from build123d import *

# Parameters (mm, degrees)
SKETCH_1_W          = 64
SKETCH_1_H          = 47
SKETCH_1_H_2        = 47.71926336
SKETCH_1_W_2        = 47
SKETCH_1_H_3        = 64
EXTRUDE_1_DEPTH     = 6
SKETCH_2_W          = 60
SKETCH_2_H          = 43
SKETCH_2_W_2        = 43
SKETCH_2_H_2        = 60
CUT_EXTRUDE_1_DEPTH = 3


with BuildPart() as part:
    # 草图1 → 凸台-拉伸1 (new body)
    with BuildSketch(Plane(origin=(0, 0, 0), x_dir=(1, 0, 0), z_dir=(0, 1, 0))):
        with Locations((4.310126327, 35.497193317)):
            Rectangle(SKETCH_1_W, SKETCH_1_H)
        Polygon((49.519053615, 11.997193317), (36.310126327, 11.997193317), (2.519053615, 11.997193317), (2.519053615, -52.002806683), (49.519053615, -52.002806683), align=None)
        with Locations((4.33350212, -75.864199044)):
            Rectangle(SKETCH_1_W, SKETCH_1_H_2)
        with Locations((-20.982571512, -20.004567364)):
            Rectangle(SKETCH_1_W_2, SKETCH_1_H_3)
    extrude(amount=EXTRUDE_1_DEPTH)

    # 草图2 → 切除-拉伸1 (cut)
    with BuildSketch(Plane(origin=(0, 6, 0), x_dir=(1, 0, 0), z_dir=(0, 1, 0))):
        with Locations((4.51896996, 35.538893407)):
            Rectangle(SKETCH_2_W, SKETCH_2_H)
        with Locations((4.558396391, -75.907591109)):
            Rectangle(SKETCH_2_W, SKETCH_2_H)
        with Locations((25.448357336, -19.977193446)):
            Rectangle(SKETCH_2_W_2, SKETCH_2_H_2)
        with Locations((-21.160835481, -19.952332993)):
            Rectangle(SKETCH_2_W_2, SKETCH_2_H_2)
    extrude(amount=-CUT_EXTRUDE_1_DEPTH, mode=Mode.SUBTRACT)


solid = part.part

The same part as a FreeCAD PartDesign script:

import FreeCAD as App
import Part
import Sketcher
from FreeCAD import Vector

doc = App.newDocument("Part")
body = doc.addObject("PartDesign::Body", "Body")
body.AllowCompound = True

# Sketch on XZ plane
sketch1 = body.newObject("Sketcher::SketchObject", "Sketch")
sketch1.AttachmentSupport = (doc.getObject("XZ_Plane"), [""])
sketch1.MapMode = "FlatFace"
sketch1.addGeometry([
    Part.LineSegment(Vector(-28, -59, 0), Vector(-28, -12, 0)),  # 0
    Part.LineSegment(Vector(-28, -12, 0), Vector(3, -12, 0)),  # 1
    Part.LineSegment(Vector(3, -12, 0), Vector(3, 52, 0)),  # 2
    Part.LineSegment(Vector(3, 52, 0), Vector(50, 52, 0)),  # 3
    Part.LineSegment(Vector(50, 52, 0), Vector(50, -12, 0)),  # 4
    Part.LineSegment(Vector(50, -12, 0), Vector(36, -12, 0)),  # 5
    Part.LineSegment(Vector(36, -12, 0), Vector(36, -59, 0)),  # 6
    Part.LineSegment(Vector(36, -59, 0), Vector(-28, -59, 0)),  # 7
    Part.LineSegment(Vector(-28, 52, 0), Vector(-28, 100, 0)),  # 8
    Part.LineSegment(Vector(-28, 100, 0), Vector(36, 100, 0)),  # 9
    Part.LineSegment(Vector(36, 100, 0), Vector(36, 52, 0)),  # 10
    Part.LineSegment(Vector(36, 52, 0), Vector(3, 52, 0)),  # 11
    Part.LineSegment(Vector(3, 52, 0), Vector(3, -12, 0)),  # 12
    Part.LineSegment(Vector(3, -12, 0), Vector(-44, -12, 0)),  # 13
    Part.LineSegment(Vector(-44, -12, 0), Vector(-44, 52, 0)),  # 14
    Part.LineSegment(Vector(-44, 52, 0), Vector(-28, 52, 0)),  # 15
], False)
sketch1.addConstraint([
    Sketcher.Constraint("Coincident", 0, 2, 1, 1),
    Sketcher.Constraint("Coincident", 1, 2, 2, 1),
    Sketcher.Constraint("Coincident", 2, 2, 3, 1),
    Sketcher.Constraint("Coincident", 3, 2, 4, 1),
    Sketcher.Constraint("Coincident", 4, 2, 5, 1),
    Sketcher.Constraint("Coincident", 5, 2, 6, 1),
    Sketcher.Constraint("Coincident", 6, 2, 7, 1),
    Sketcher.Constraint("Coincident", 7, 2, 0, 1),
    Sketcher.Constraint("Coincident", 8, 2, 9, 1),
    Sketcher.Constraint("Coincident", 9, 2, 10, 1),
    Sketcher.Constraint("Coincident", 10, 2, 11, 1),
    Sketcher.Constraint("Coincident", 11, 2, 12, 1),
    Sketcher.Constraint("Coincident", 12, 2, 13, 1),
    Sketcher.Constraint("Coincident", 13, 2, 14, 1),
    Sketcher.Constraint("Coincident", 14, 2, 15, 1),
    Sketcher.Constraint("Coincident", 15, 2, 8, 1),
    Sketcher.Constraint("Vertical", 0),
    Sketcher.Constraint("Horizontal", 1),
    Sketcher.Constraint("Vertical", 2),
    Sketcher.Constraint("Horizontal", 3),
    Sketcher.Constraint("Vertical", 4),
    Sketcher.Constraint("Horizontal", 5),
    Sketcher.Constraint("Vertical", 6),
    Sketcher.Constraint("Horizontal", 7),
    Sketcher.Constraint("Vertical", 8),
    Sketcher.Constraint("Horizontal", 9),
    Sketcher.Constraint("Vertical", 10),
    Sketcher.Constraint("Horizontal", 11),
    Sketcher.Constraint("Vertical", 12),
    Sketcher.Constraint("Horizontal", 13),
    Sketcher.Constraint("Vertical", 14),
    Sketcher.Constraint("Horizontal", 15),
    Sketcher.Constraint("Horizontal", 1, 2, 4, 2),
    Sketcher.Constraint("Horizontal", 11, 2, 14, 2),
    Sketcher.Constraint("Equal", 7, 9),
    Sketcher.Constraint("Equal", 3, 13),
    Sketcher.Constraint("Equal", 13, 0),
    Sketcher.Constraint("Equal", 9, 2),
    Sketcher.Constraint("Equal", 4, 12),
    Sketcher.Constraint("DistanceX", 3, 1, 3, 2, 47.0),
    Sketcher.Constraint("DistanceX", 7, 2, 7, 1, 64.0),
    Sketcher.Constraint("DistanceX", 1, 1, 1, 2, 30.208927),
    Sketcher.Constraint("DistanceX", 11, 2, 11, 1, 33.816074),
    Sketcher.Constraint("DistanceY", 8, 1, 8, 2, 47.719263),
    Sketcher.Constraint("DistanceY", -1, 1, 8, 2, 99.723831),
    Sketcher.Constraint("DistanceX", -1, 1, 11, 2, 2.517428),
    Sketcher.Constraint("DistanceX", 8, 2, 2, 2, 30.185551),
    Sketcher.Constraint("DistanceY", 3, 2, 10, 2, 0.001761),
])
pad1 = body.newObject("PartDesign::Pad", "Pad")
pad1.Profile = sketch1
pad1.Length = 6
pad1.Reversed = True

# Sketch on XZ plane
sketch2 = body.newObject("Sketcher::SketchObject", "Sketch001")
sketch2.AttachmentSupport = (doc.getObject("XZ_Plane"), [""])
sketch2.MapMode = "FlatFace"
sketch2.AttachmentOffset = App.Placement(Vector(0, 0, -6), App.Rotation())
sketch2.addGeometry([
    Part.LineSegment(Vector(-25, -57, 0), Vector(-25, -14, 0)),  # 0
    Part.LineSegment(Vector(-25, -14, 0), Vector(35, -14, 0)),  # 1
    Part.LineSegment(Vector(35, -14, 0), Vector(35, -57, 0)),  # 2
    Part.LineSegment(Vector(35, -57, 0), Vector(-25, -57, 0)),  # 3
    Part.LineSegment(Vector(-25, 54, 0), Vector(-25, 97, 0)),  # 4
    Part.LineSegment(Vector(-25, 97, 0), Vector(35, 97, 0)),  # 5
    Part.LineSegment(Vector(35, 97, 0), Vector(35, 54, 0)),  # 6
    Part.LineSegment(Vector(35, 54, 0), Vector(-25, 54, 0)),  # 7
    Part.LineSegment(Vector(4, -10, 0), Vector(4, 50, 0)),  # 8
    Part.LineSegment(Vector(4, 50, 0), Vector(47, 50, 0)),  # 9
    Part.LineSegment(Vector(47, 50, 0), Vector(47, -10, 0)),  # 10
    Part.LineSegment(Vector(47, -10, 0), Vector(4, -10, 0)),  # 11
    Part.LineSegment(Vector(-43, -10, 0), Vector(-43, 50, 0)),  # 12
    Part.LineSegment(Vector(-43, 50, 0), Vector(0, 50, 0)),  # 13
    Part.LineSegment(Vector(0, 50, 0), Vector(0, -10, 0)),  # 14
    Part.LineSegment(Vector(0, -10, 0), Vector(-43, -10, 0)),  # 15
], False)
sketch2.addConstraint([
    Sketcher.Constraint("Coincident", 0, 2, 1, 1),
    Sketcher.Constraint("Coincident", 1, 2, 2, 1),
    Sketcher.Constraint("Coincident", 2, 2, 3, 1),
    Sketcher.Constraint("Coincident", 3, 2, 0, 1),
    Sketcher.Constraint("Coincident", 4, 2, 5, 1),
    Sketcher.Constraint("Coincident", 5, 2, 6, 1),
    Sketcher.Constraint("Coincident", 6, 2, 7, 1),
    Sketcher.Constraint("Coincident", 7, 2, 4, 1),
    Sketcher.Constraint("Coincident", 8, 2, 9, 1),
    Sketcher.Constraint("Coincident", 9, 2, 10, 1),
    Sketcher.Constraint("Coincident", 10, 2, 11, 1),
    Sketcher.Constraint("Coincident", 11, 2, 8, 1),
    Sketcher.Constraint("Coincident", 12, 2, 13, 1),
    Sketcher.Constraint("Coincident", 13, 2, 14, 1),
    Sketcher.Constraint("Coincident", 14, 2, 15, 1),
    Sketcher.Constraint("Coincident", 15, 2, 12, 1),
    Sketcher.Constraint("Vertical", 0),
    Sketcher.Constraint("Horizontal", 1),
    Sketcher.Constraint("Vertical", 2),
    Sketcher.Constraint("Horizontal", 3),
    Sketcher.Constraint("Vertical", 4),
    Sketcher.Constraint("Horizontal", 5),
    Sketcher.Constraint("Vertical", 6),
    Sketcher.Constraint("Horizontal", 7),
    Sketcher.Constraint("Vertical", 8),
    Sketcher.Constraint("Horizontal", 9),
    Sketcher.Constraint("Vertical", 10),
    Sketcher.Constraint("Horizontal", 11),
    Sketcher.Constraint("Vertical", 12),
    Sketcher.Constraint("Horizontal", 13),
    Sketcher.Constraint("Vertical", 14),
    Sketcher.Constraint("Horizontal", 15),
    Sketcher.Constraint("Equal", 3, 5),
    Sketcher.Constraint("Equal", 11, 13),
    Sketcher.Constraint("Equal", 15, 0),
    Sketcher.Constraint("Equal", 2, 4),
    Sketcher.Constraint("Equal", 7, 8),
    Sketcher.Constraint("Equal", 10, 12),
    Sketcher.Constraint("DistanceX", 1, 1, 1, 2, 60.0),
    Sketcher.Constraint("DistanceX", 9, 1, 9, 2, 43.0),
    Sketcher.Constraint("DistanceX", 0, 2, -1, 1, 25.48103),
    Sketcher.Constraint("DistanceY", -1, 1, 4, 2, 97.407591),
    Sketcher.Constraint("DistanceX", 7, 2, 8, 2, 29.389961),
    Sketcher.Constraint("DistanceX", 12, 2, 7, 2, 17.219232),
    Sketcher.Constraint("DistanceY", 12, 2, 7, 2, 4.455258),
    Sketcher.Constraint("DistanceY", 12, 2, 8, 2, 0.02486),
    Sketcher.Constraint("DistanceY", 0, 2, -1, 1, 14.038893),
    Sketcher.Constraint("DistanceX", 4, 2, -1, 1, 25.441604),
])
pocket1 = body.newObject("PartDesign::Pocket", "Pocket")
pocket1.Profile = sketch2
pocket1.Length = 3
pocket1.Reversed = True

doc.recompute()
